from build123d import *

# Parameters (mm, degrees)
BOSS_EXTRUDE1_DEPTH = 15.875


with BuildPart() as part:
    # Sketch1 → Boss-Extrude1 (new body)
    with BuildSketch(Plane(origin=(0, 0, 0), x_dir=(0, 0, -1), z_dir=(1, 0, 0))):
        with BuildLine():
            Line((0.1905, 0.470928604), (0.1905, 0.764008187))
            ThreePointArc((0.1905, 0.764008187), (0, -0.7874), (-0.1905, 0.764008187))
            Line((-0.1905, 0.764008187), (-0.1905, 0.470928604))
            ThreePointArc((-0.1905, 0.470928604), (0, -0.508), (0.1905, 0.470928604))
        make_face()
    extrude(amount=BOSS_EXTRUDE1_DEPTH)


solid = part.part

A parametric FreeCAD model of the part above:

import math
import FreeCAD as App
import Part
import Sketcher
from FreeCAD import Vector
Q = App.Units.Quantity

doc = App.newDocument("Part")
params = doc.addObject("Spreadsheet::Sheet", "Params")
for row, (alias, value) in enumerate([
    ("sketch1_radius", "0.02 in"),
    ("sketch1_radius2", "0.031 in"),
    ("pad1_length", "0.625 in"),
], start=1):
    params.set(f"A{row}", alias)
    params.set(f"B{row}", "=" + value)
    params.setAlias(f"B{row}", alias)

body = doc.addObject("PartDesign::Body", "Body")

sketch1 = doc.addObject("Sketcher::SketchObject", "Sketch")
body.addObject(sketch1)
sketch1.AttachmentSupport = (doc.YZ_Plane, [""])
sketch1.MapMode = "FlatFace"
sketch1.addGeometry(Part.LineSegment(Vector(0.76, -0.19, 0), Vector(0.47, -0.19, 0)), False)
sketch1.addGeometry(Part.ArcOfCircle(Part.Circle(Vector(0, 0, 0), Vector(0, 0, 1), 0.51), math.radians(22), math.radians(338)), False)
sketch1.addGeometry(Part.LineSegment(Vector(0.47, 0.19, 0), Vector(0.76, 0.19, 0)), False)
sketch1.addGeometry(Part.ArcOfCircle(Part.Circle(Vector(0, 0, 0), Vector(0, 0, 1), 0.79), math.radians(14), math.radians(346)), False)
sketch1.addConstraint(Sketcher.Constraint("Coincident", 0, 2, 1, 2))
sketch1.addConstraint(Sketcher.Constraint("Coincident", 1, 1, 2, 1))
sketch1.addConstraint(Sketcher.Constraint("Coincident", 2, 2, 3, 1))
sketch1.addConstraint(Sketcher.Constraint("Coincident", 3, 2, 0, 1))
sketch1.addConstraint(Sketcher.Constraint("Horizontal", 0))
sketch1.addConstraint(Sketcher.Constraint("Horizontal", 2))
sketch1.addConstraint(Sketcher.Constraint("Coincident", 1, 3, -1, 1))
sketch1.addConstraint(Sketcher.Constraint("Coincident", 3, 3, -1, 1))
sketch1.addConstraint(Sketcher.Constraint("Vertical", 0, 2, 1, 1))
sketch1.addConstraint(Sketcher.Constraint("Radius", 1, Q("0.02 in")))
sketch1.addConstraint(Sketcher.Constraint("Radius", 3, Q("0.031 in")))
sketch1.addConstraint(Sketcher.Constraint("DistanceY", 0, 2, 1, 1, Q("0.015 in")))
sketch1.setExpression("Constraints[9]", "Params.sketch1_radius")
sketch1.setExpression("Constraints[10]", "Params.sketch1_radius2")
pad1 = doc.addObject("PartDesign::Pad", "Pad")
body.addObject(pad1)
pad1.Profile = sketch1
pad1.setExpression("Length", "Params.pad1_length")

doc.recompute()
